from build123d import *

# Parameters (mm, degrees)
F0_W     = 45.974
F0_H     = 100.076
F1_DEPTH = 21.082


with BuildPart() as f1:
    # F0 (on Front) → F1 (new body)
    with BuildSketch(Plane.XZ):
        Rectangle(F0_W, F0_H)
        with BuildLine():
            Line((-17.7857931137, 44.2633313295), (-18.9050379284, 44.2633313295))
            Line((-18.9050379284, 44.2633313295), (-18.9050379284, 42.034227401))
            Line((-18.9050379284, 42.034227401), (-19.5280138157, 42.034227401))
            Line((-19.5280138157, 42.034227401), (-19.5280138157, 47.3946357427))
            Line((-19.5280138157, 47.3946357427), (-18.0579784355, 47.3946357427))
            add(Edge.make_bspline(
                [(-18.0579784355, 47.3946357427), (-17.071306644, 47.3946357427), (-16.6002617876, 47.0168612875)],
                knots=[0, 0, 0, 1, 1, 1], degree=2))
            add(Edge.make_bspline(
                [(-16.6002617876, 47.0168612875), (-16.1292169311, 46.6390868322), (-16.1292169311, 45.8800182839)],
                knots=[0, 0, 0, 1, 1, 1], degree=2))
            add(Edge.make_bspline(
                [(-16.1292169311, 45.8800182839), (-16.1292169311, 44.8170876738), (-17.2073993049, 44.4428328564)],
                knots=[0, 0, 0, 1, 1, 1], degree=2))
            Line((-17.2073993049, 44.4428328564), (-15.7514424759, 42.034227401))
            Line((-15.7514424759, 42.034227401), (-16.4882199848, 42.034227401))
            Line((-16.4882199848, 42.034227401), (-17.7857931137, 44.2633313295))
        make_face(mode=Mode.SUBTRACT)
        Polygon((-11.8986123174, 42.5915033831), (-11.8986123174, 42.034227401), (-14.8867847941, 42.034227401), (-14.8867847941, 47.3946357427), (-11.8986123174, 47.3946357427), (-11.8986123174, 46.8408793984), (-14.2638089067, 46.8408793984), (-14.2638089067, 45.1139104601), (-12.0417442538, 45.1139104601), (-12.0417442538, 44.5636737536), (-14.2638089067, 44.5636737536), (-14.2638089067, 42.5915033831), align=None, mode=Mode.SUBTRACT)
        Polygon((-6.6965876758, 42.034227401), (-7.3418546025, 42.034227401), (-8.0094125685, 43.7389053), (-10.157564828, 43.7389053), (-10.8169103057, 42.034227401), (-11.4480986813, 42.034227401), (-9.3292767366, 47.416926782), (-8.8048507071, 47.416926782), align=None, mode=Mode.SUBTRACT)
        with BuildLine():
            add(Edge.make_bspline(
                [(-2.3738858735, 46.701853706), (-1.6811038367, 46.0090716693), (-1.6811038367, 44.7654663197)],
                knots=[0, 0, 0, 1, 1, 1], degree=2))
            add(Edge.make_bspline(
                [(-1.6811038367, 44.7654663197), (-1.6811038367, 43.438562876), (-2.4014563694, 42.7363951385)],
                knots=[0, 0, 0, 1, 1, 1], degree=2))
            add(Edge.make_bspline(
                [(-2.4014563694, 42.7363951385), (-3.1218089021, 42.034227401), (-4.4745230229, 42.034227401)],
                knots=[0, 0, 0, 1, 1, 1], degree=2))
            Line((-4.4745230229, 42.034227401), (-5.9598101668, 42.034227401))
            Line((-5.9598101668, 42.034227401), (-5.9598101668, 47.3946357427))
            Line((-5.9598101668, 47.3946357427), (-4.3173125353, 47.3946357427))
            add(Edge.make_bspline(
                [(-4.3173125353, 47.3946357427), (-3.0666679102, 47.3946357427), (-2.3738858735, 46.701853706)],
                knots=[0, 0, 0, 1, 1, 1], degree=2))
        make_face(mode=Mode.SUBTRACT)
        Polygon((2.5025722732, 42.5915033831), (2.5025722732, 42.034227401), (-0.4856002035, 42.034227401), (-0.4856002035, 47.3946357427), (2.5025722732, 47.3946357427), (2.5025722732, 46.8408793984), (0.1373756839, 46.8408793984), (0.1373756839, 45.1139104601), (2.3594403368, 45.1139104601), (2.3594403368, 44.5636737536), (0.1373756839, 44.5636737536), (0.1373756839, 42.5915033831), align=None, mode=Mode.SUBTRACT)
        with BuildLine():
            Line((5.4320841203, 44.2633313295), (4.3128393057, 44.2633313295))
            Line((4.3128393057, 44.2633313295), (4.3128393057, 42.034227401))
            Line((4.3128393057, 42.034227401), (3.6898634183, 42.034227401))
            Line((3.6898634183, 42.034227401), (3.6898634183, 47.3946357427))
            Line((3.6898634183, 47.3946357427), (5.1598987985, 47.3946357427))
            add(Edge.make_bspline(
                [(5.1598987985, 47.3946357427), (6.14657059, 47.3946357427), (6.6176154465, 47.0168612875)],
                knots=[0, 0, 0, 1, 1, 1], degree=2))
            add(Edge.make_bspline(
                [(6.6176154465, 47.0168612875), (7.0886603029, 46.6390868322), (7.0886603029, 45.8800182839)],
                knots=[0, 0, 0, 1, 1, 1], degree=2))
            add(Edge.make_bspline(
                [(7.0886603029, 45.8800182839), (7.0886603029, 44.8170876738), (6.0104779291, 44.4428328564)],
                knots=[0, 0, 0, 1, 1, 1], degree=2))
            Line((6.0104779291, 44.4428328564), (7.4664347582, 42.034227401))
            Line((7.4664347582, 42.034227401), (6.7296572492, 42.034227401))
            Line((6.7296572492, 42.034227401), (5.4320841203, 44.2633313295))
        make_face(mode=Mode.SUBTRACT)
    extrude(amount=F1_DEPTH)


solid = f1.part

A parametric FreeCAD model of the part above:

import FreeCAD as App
import Part
import Sketcher
Q = App.Units.Quantity


def add_polygon(sketch, points):
    """Adds a closed chain of lines whose ends are joined by coincident constraints."""
    first, n = sketch.GeometryCount, len(points)
    for a, b in zip(points, points[1:] + points[:1]):
        sketch.addGeometry(Part.LineSegment(App.Vector(*a, 0), App.Vector(*b, 0)), False)
    for i in range(n):
        sketch.addConstraint(Sketcher.Constraint("Coincident", first + i, 2, first + (i + 1) % n, 1))

doc = App.newDocument("Part")
params = doc.addObject("Spreadsheet::Sheet", "Params")
for row, (alias, value) in enumerate([
    ("sketch1_width", "1.81 in"),
    ("sketch1_height", "3.94 in"),
    ("pad1_length", "0.83 in"),
], start=1):
    params.set(f"A{row}", alias)
    params.set(f"B{row}", "=" + value)
    params.setAlias(f"B{row}", alias)

body = doc.addObject("PartDesign::Body", "Body")

# Sketch on XZ plane
sketch1 = body.newObject("Sketcher::SketchObject", "Sketch")
sketch1.AttachmentSupport = (doc.getObject("XZ_Plane"), [""])
sketch1.MapMode = "FlatFace"
add_polygon(sketch1, [(-22.987, 50.038), (-22.987, -50.038), (22.987, -50.038), (22.987, 50.038)])  # lines 0-3
sketch1.addGeometry(Part.LineSegment(App.Vector(-16.48822, 42.034227, 0), App.Vector(-17.785793, 44.263331, 0)), False)  # 4
sketch1.addGeometry(Part.LineSegment(App.Vector(-17.785793, 44.263331, 0), App.Vector(-18.905038, 44.263331, 0)), False)  # 5
sketch1.addGeometry(Part.LineSegment(App.Vector(-18.905038, 44.263331, 0), App.Vector(-18.905038, 42.034227, 0)), False)  # 6
sketch1.addGeometry(Part.LineSegment(App.Vector(-18.905038, 42.034227, 0), App.Vector(-19.528014, 42.034227, 0)), False)  # 7
sketch1.addGeometry(Part.LineSegment(App.Vector(-19.528014, 42.034227, 0), App.Vector(-19.528014, 47.394636, 0)), False)  # 8
sketch1.addGeometry(Part.LineSegment(App.Vector(-19.528014, 47.394636, 0), App.Vector(-18.057978, 47.394636, 0)), False)  # 9
sketch1.addGeometry(Part.BSplineCurve([App.Vector(-18.057978, 47.394636, 0), App.Vector(-17.071307, 47.394636, 0), App.Vector(-16.600262, 47.016861, 0)], [3, 3], [0, 1], False, 2, [1, 1, 1], False), False)  # 10
sketch1.addGeometry(Part.BSplineCurve([App.Vector(-16.600262, 47.016861, 0), App.Vector(-16.129217, 46.639087, 0), App.Vector(-16.129217, 44.817088, 0), App.Vector(-17.207399, 44.442833, 0)], [3, 1, 3], [0, 1, 2.400309119], False, 2, [1, 1, 1, 1], False), False)  # 11
sketch1.addGeometry(Part.LineSegment(App.Vector(-17.207399, 44.442833, 0), App.Vector(-15.751442, 42.034227, 0)), False)  # 12
sketch1.addGeometry(Part.LineSegment(App.Vector(-15.751442, 42.034227, 0), App.Vector(-16.48822, 42.034227, 0)), False)  # 13
add_polygon(sketch1, [(-14.263809, 42.591503), (-11.898612, 42.591503), (-11.898612, 42.034227), (-14.886785, 42.034227), (-14.886785, 47.394636), (-11.898612, 47.394636), (-11.898612, 46.840879), (-14.263809, 46.840879), (-14.263809, 45.11391), (-12.041744, 45.11391), (-12.041744, 44.563674), (-14.263809, 44.563674)])  # lines 14-25
sketch1.addGeometry(Part.BSplineCurve([App.Vector(-4.317313, 47.394636, 0), App.Vector(-3.066668, 47.394636, 0), App.Vector(-2.373886, 46.701854, 0)], [3, 3], [0, 1], False, 2, [1, 1, 1], False), False)  # 26
sketch1.addGeometry(Part.BSplineCurve([App.Vector(-2.373886, 46.701854, 0), App.Vector(-1.681104, 46.009072, 0), App.Vector(-1.681104, 43.438563, 0), App.Vector(-3.121809, 42.034227, 0), App.Vector(-4.474523, 42.034227, 0)], [3, 1, 1, 3], [0, 1, 2.066981132, 3.133962264], False, 2, [1, 1, 1, 1, 1], False), False)  # 27
sketch1.addGeometry(Part.LineSegment(App.Vector(-4.474523, 42.034227, 0), App.Vector(-5.95981, 42.034227, 0)), False)  # 28
sketch1.addGeometry(Part.LineSegment(App.Vector(-5.95981, 42.034227, 0), App.Vector(-5.95981, 47.394636, 0)), False)  # 29
sketch1.addGeometry(Part.LineSegment(App.Vector(-5.95981, 47.394636, 0), App.Vector(-4.317313, 47.394636, 0)), False)  # 30
add_polygon(sketch1, [(0.137376, 42.591503), (2.502572, 42.591503), (2.502572, 42.034227), (-0.4856, 42.034227), (-0.4856, 47.394636), (2.502572, 47.394636), (2.502572, 46.840879), (0.137376, 46.840879), (0.137376, 45.11391), (2.35944, 45.11391), (2.35944, 44.563674), (0.137376, 44.563674)])  # lines 31-42
sketch1.addGeometry(Part.LineSegment(App.Vector(6.729657, 42.034227, 0), App.Vector(5.432084, 44.263331, 0)), False)  # 43
sketch1.addGeometry(Part.LineSegment(App.Vector(5.432084, 44.263331, 0), App.Vector(4.312839, 44.263331, 0)), False)  # 44
sketch1.addGeometry(Part.LineSegment(App.Vector(4.312839, 44.263331, 0), App.Vector(4.312839, 42.034227, 0)), False)  # 45
sketch1.addGeometry(Part.LineSegment(App.Vector(4.312839, 42.034227, 0), App.Vector(3.689863, 42.034227, 0)), False)  # 46
sketch1.addGeometry(Part.LineSegment(App.Vector(3.689863, 42.034227, 0), App.Vector(3.689863, 47.394636, 0)), False)  # 47
sketch1.addGeometry(Part.LineSegment(App.Vector(3.689863, 47.394636, 0), App.Vector(5.159899, 47.394636, 0)), False)  # 48
sketch1.addGeometry(Part.BSplineCurve([App.Vector(5.159899, 47.394636, 0), App.Vector(6.146571, 47.394636, 0), App.Vector(6.617615, 47.016861, 0)], [3, 3], [0, 1], False, 2, [1, 1, 1], False), False)  # 49
sketch1.addGeometry(Part.BSplineCurve([App.Vector(6.617615, 47.016861, 0), App.Vector(7.08866, 46.639087, 0), App.Vector(7.08866, 44.817088, 0), App.Vector(6.010478, 44.442833, 0)], [3, 1, 3], [0, 1, 2.400309119], False, 2, [1, 1, 1, 1], False), False)  # 50
sketch1.addGeometry(Part.LineSegment(App.Vector(6.010478, 44.442833, 0), App.Vector(7.466435, 42.034227, 0)), False)  # 51
sketch1.addGeometry(Part.LineSegment(App.Vector(7.466435, 42.034227, 0), App.Vector(6.729657, 42.034227, 0)), False)  # 52
add_polygon(sketch1, [(-8.804851, 47.416927), (-6.696588, 42.034227), (-7.341855, 42.034227), (-8.009413, 43.738905), (-10.157565, 43.738905), (-10.81691, 42.034227), (-11.448099, 42.034227), (-9.329277, 47.416927)])  # lines 53-60
sketch1.addConstraint(Sketcher.Constraint("Block", 10))
sketch1.addConstraint(Sketcher.Constraint("Block", 11))
sketch1.addConstraint(Sketcher.Constraint("Block", 26))
sketch1.addConstraint(Sketcher.Constraint("Block", 27))
sketch1.addConstraint(Sketcher.Constraint("Block", 49))
sketch1.addConstraint(Sketcher.Constraint("Block", 50))
sketch1.addConstraint(Sketcher.Constraint("Coincident", 4, 2, 5, 1))
sketch1.addConstraint(Sketcher.Constraint("Coincident", 5, 2, 6, 1))
sketch1.addConstraint(Sketcher.Constraint("Coincident", 6, 2, 7, 1))
sketch1.addConstraint(Sketcher.Constraint("Coincident", 7, 2, 8, 1))
sketch1.addConstraint(Sketcher.Constraint("Coincident", 8, 2, 9, 1))
sketch1.addConstraint(Sketcher.Constraint("Coincident", 9, 2, 10, 1))
sketch1.addConstraint(Sketcher.Constraint("Coincident", 11, 2, 12, 1))
sketch1.addConstraint(Sketcher.Constraint("Coincident", 12, 2, 13, 1))
sketch1.addConstraint(Sketcher.Constraint("Coincident", 13, 2, 4, 1))
sketch1.addConstraint(Sketcher.Constraint("Coincident", 27, 2, 28, 1))
sketch1.addConstraint(Sketcher.Constraint("Coincident", 28, 2, 29, 1))
sketch1.addConstraint(Sketcher.Constraint("Coincident", 29, 2, 30, 1))
sketch1.addConstraint(Sketcher.Constraint("Coincident", 30, 2, 26, 1))
sketch1.addConstraint(Sketcher.Constraint("Coincident", 43, 2, 44, 1))
sketch1.addConstraint(Sketcher.Constraint("Coincident", 44, 2, 45, 1))
sketch1.addConstraint(Sketcher.Constraint("Coincident", 45, 2, 46, 1))
sketch1.addConstraint(Sketcher.Constraint("Coincident", 46, 2, 47, 1))
sketch1.addConstraint(Sketcher.Constraint("Coincident", 47, 2, 48, 1))
sketch1.addConstraint(Sketcher.Constraint("Coincident", 48, 2, 49, 1))
sketch1.addConstraint(Sketcher.Constraint("Coincident", 50, 2, 51, 1))
sketch1.addConstraint(Sketcher.Constraint("Coincident", 51, 2, 52, 1))
sketch1.addConstraint(Sketcher.Constraint("Coincident", 52, 2, 43, 1))
sketch1.addConstraint(Sketcher.Constraint("Vertical", 0))
sketch1.addConstraint(Sketcher.Constraint("Horizontal", 1))
sketch1.addConstraint(Sketcher.Constraint("Vertical", 2))
sketch1.addConstraint(Sketcher.Constraint("Horizontal", 3))
sketch1.addConstraint(Sketcher.Constraint("Horizontal", 5))
sketch1.addConstraint(Sketcher.Constraint("Vertical", 6))
sketch1.addConstraint(Sketcher.Constraint("Horizontal", 7))
sketch1.addConstraint(Sketcher.Constraint("Vertical", 8))
sketch1.addConstraint(Sketcher.Constraint("Horizontal", 9))
sketch1.addConstraint(Sketcher.Constraint("Horizontal", 13))
sketch1.addConstraint(Sketcher.Constraint("Horizontal", 14))
sketch1.addConstraint(Sketcher.Constraint("Vertical", 15))
sketch1.addConstraint(Sketcher.Constraint("Horizontal", 16))
sketch1.addConstraint(Sketcher.Constraint("Vertical", 17))
sketch1.addConstraint(Sketcher.Constraint("Horizontal", 18))
sketch1.addConstraint(Sketcher.Constraint("Vertical", 19))
sketch1.addConstraint(Sketcher.Constraint("Horizontal", 20))
sketch1.addConstraint(Sketcher.Constraint("Vertical", 21))
sketch1.addConstraint(Sketcher.Constraint("Horizontal", 22))
sketch1.addConstraint(Sketcher.Constraint("Vertical", 23))
sketch1.addConstraint(Sketcher.Constraint("Horizontal", 24))
sketch1.addConstraint(Sketcher.Constraint("Vertical", 25))
sketch1.addConstraint(Sketcher.Constraint("Horizontal", 28))
sketch1.addConstraint(Sketcher.Constraint("Vertical", 29))
sketch1.addConstraint(Sketcher.Constraint("Horizontal", 30))
sketch1.addConstraint(Sketcher.Constraint("Horizontal", 31))
sketch1.addConstraint(Sketcher.Constraint("Vertical", 32))
sketch1.addConstraint(Sketcher.Constraint("Horizontal", 33))
sketch1.addConstraint(Sketcher.Constraint("Vertical", 34))
sketch1.addConstraint(Sketcher.Constraint("Horizontal", 35))
sketch1.addConstraint(Sketcher.Constraint("Vertical", 36))
sketch1.addConstraint(Sketcher.Constraint("Horizontal", 37))
sketch1.addConstraint(Sketcher.Constraint("Vertical", 38))
sketch1.addConstraint(Sketcher.Constraint("Horizontal", 39))
sketch1.addConstraint(Sketcher.Constraint("Vertical", 40))
sketch1.addConstraint(Sketcher.Constraint("Horizontal", 41))
sketch1.addConstraint(Sketcher.Constraint("Vertical", 42))
sketch1.addConstraint(Sketcher.Constraint("Horizontal", 44))
sketch1.addConstraint(Sketcher.Constraint("Vertical", 45))
sketch1.addConstraint(Sketcher.Constraint("Horizontal", 46))
sketch1.addConstraint(Sketcher.Constraint("Vertical", 47))
sketch1.addConstraint(Sketcher.Constraint("Horizontal", 48))
sketch1.addConstraint(Sketcher.Constraint("Horizontal", 52))
sketch1.addConstraint(Sketcher.Constraint("Horizontal", 54))
sketch1.addConstraint(Sketcher.Constraint("Horizontal", 56))
sketch1.addConstraint(Sketcher.Constraint("Horizontal", 58))
sketch1.addConstraint(Sketcher.Constraint("Horizontal", 60))
sketch1.addConstraint(Sketcher.Constraint("Symmetric", 0, 2, 2, 2, -1, 1))
sketch1.addConstraint(Sketcher.Constraint("Parallel", 4, 43))
sketch1.addConstraint(Sketcher.Constraint("Parallel", 12, 51))
sketch1.addConstraint(Sketcher.Constraint("Horizontal", 7, 2, 12, 2))
sketch1.addConstraint(Sketcher.Constraint("Horizontal", 13, 2, 15, 2))
sketch1.addConstraint(Sketcher.Constraint("Horizontal", 9, 2, 17, 2))
sketch1.addConstraint(Sketcher.Constraint("Horizontal", 16, 2, 28, 2))
sketch1.addConstraint(Sketcher.Constraint("Horizontal", 25, 2, 31, 2))
sketch1.addConstraint(Sketcher.Constraint("Horizontal", 28, 2, 32, 2))
sketch1.addConstraint(Sketcher.Constraint("Horizontal", 30, 2, 34, 2))
sketch1.addConstraint(Sketcher.Constraint("Horizontal", 20, 2, 36, 2))
sketch1.addConstraint(Sketcher.Constraint("Horizontal", 22, 2, 38, 2))
sketch1.addConstraint(Sketcher.Constraint("Horizontal", 24, 2, 40, 2))
sketch1.addConstraint(Sketcher.Constraint("Horizontal", 5, 2, 43, 2))
sketch1.addConstraint(Sketcher.Constraint("Horizontal", 33, 2, 45, 2))
sketch1.addConstraint(Sketcher.Constraint("Horizontal", 46, 2, 51, 2))
sketch1.addConstraint(Sketcher.Constraint("Horizontal", 52, 2, 53, 2))
sketch1.addConstraint(Sketcher.Constraint("Horizontal", 54, 2, 57, 2))
sketch1.addConstraint(Sketcher.Constraint("Vertical", 15, 2, 18, 2))
sketch1.addConstraint(Sketcher.Constraint("Vertical", 21, 2, 24, 2))
sketch1.addConstraint(Sketcher.Constraint("Vertical", 32, 2, 35, 2))
sketch1.addConstraint(Sketcher.Constraint("Vertical", 38, 2, 41, 2))
sketch1.addConstraint(Sketcher.Constraint("Equal", 20, 31))
sketch1.addConstraint(Sketcher.Constraint("Equal", 18, 33))
sketch1.addConstraint(Sketcher.Constraint("Equal", 24, 39))
sketch1.addConstraint(Sketcher.Constraint("Equal", 5, 44))
sketch1.addConstraint(Sketcher.Constraint("Equal", 7, 46))
sketch1.addConstraint(Sketcher.Constraint("Equal", 9, 48))
sketch1.addConstraint(Sketcher.Constraint("DistanceX", 1, 1, 1, 2, Q("1.81 in")))
sketch1.addConstraint(Sketcher.Constraint("DistanceY", 0, 2, 0, 1, Q("3.94 in")))
sketch1.addConstraint(Sketcher.Constraint("DistanceX", 15, 2, 54, 2, Q("0.1793999 in")))
sketch1.addConstraint(Sketcher.Constraint("DistanceX", 58, 2, 58, 1, Q("0.631188 mm")))
sketch1.addConstraint(Sketcher.Constraint("DistanceY", 21, 2, 21, 1, Q("1.726969 mm")))
sketch1.addConstraint(Sketcher.Constraint("DistanceY", 25, 2, 25, 1, Q("1.97217 mm")))
sketch1.addConstraint(Sketcher.Constraint("DistanceX", 33, 2, -1, 1, Q("0.4856 mm")))
sketch1.addConstraint(Sketcher.Constraint("DistanceX", 58, 2, -1, 1, Q("11.448099 mm")))
sketch1.addConstraint(Sketcher.Constraint("DistanceX", 18, 2, 30, 2, Q("7.5813 mm")))
sketch1.addConstraint(Sketcher.Constraint("DistanceX", 40, 2, 44, 2, Q("1.953399 mm")))
sketch1.addConstraint(Sketcher.Constraint("DistanceX", 14, 2, 55, 2, Q("3.8892 mm")))
sketch1.addConstraint(Sketcher.Constraint("DistanceY", 14, 2, 55, 2, Q("1.147402 mm")))
sketch1.addConstraint(Sketcher.Constraint("Distance", 12, Q("2.814461 mm")))
sketch1.addConstraint(Sketcher.Constraint("Distance", 53, Q("5.78085 mm")))
sketch1.addConstraint(Sketcher.Constraint("Distance", 57, Q("1.827748 mm")))
sketch1.addConstraint(Sketcher.Constraint("Distance", 59, Q("5.784709 mm")))
sketch1.addConstraint(Sketcher.Constraint("DistanceX", 5, 2, 5, 1, Q("1.119245 mm")))
sketch1.addConstraint(Sketcher.Constraint("DistanceX", 7, 2, 7, 1, Q("0.622976 mm")))
sketch1.addConstraint(Sketcher.Constraint("DistanceX", 9, 1, 9, 2, Q("1.470035 mm")))
sketch1.addConstraint(Sketcher.Constraint("DistanceX", 13, 2, 13, 1, Q("0.736778 mm")))
sketch1.addConstraint(Sketcher.Constraint("DistanceX", 14, 1, 14, 2, Q("2.365197 mm")))
sketch1.addConstraint(Sketcher.Constraint("DistanceX", 16, 2, 16, 1, Q("2.988172 mm")))
sketch1.addConstraint(Sketcher.Constraint("DistanceX", 28, 2, 28, 1, Q("1.485287 mm")))
sketch1.addConstraint(Sketcher.Constraint("DistanceX", 54, 2, 54, 1, Q("0.645267 mm")))
sketch1.addConstraint(Sketcher.Constraint("DistanceX", 56, 2, 56, 1, Q("2.148152 mm")))
sketch1.addConstraint(Sketcher.Constraint("DistanceX", 60, 1, 60, 2, Q("0.524426 mm")))
sketch1.addConstraint(Sketcher.Constraint("DistanceY", 6, 2, 6, 1, Q("2.229104 mm")))
sketch1.addConstraint(Sketcher.Constraint("DistanceY", 19, 2, 19, 1, Q("0.553756 mm")))
sketch1.setExpression("Constraints[139]", "Params.sketch1_width")
sketch1.setExpression("Constraints[140]", "Params.sketch1_height")
pad1 = body.newObject("PartDesign::Pad", "Pad")
pad1.Profile = sketch1
pad1.setExpression("Length", "Params.pad1_length")

doc.recompute()
